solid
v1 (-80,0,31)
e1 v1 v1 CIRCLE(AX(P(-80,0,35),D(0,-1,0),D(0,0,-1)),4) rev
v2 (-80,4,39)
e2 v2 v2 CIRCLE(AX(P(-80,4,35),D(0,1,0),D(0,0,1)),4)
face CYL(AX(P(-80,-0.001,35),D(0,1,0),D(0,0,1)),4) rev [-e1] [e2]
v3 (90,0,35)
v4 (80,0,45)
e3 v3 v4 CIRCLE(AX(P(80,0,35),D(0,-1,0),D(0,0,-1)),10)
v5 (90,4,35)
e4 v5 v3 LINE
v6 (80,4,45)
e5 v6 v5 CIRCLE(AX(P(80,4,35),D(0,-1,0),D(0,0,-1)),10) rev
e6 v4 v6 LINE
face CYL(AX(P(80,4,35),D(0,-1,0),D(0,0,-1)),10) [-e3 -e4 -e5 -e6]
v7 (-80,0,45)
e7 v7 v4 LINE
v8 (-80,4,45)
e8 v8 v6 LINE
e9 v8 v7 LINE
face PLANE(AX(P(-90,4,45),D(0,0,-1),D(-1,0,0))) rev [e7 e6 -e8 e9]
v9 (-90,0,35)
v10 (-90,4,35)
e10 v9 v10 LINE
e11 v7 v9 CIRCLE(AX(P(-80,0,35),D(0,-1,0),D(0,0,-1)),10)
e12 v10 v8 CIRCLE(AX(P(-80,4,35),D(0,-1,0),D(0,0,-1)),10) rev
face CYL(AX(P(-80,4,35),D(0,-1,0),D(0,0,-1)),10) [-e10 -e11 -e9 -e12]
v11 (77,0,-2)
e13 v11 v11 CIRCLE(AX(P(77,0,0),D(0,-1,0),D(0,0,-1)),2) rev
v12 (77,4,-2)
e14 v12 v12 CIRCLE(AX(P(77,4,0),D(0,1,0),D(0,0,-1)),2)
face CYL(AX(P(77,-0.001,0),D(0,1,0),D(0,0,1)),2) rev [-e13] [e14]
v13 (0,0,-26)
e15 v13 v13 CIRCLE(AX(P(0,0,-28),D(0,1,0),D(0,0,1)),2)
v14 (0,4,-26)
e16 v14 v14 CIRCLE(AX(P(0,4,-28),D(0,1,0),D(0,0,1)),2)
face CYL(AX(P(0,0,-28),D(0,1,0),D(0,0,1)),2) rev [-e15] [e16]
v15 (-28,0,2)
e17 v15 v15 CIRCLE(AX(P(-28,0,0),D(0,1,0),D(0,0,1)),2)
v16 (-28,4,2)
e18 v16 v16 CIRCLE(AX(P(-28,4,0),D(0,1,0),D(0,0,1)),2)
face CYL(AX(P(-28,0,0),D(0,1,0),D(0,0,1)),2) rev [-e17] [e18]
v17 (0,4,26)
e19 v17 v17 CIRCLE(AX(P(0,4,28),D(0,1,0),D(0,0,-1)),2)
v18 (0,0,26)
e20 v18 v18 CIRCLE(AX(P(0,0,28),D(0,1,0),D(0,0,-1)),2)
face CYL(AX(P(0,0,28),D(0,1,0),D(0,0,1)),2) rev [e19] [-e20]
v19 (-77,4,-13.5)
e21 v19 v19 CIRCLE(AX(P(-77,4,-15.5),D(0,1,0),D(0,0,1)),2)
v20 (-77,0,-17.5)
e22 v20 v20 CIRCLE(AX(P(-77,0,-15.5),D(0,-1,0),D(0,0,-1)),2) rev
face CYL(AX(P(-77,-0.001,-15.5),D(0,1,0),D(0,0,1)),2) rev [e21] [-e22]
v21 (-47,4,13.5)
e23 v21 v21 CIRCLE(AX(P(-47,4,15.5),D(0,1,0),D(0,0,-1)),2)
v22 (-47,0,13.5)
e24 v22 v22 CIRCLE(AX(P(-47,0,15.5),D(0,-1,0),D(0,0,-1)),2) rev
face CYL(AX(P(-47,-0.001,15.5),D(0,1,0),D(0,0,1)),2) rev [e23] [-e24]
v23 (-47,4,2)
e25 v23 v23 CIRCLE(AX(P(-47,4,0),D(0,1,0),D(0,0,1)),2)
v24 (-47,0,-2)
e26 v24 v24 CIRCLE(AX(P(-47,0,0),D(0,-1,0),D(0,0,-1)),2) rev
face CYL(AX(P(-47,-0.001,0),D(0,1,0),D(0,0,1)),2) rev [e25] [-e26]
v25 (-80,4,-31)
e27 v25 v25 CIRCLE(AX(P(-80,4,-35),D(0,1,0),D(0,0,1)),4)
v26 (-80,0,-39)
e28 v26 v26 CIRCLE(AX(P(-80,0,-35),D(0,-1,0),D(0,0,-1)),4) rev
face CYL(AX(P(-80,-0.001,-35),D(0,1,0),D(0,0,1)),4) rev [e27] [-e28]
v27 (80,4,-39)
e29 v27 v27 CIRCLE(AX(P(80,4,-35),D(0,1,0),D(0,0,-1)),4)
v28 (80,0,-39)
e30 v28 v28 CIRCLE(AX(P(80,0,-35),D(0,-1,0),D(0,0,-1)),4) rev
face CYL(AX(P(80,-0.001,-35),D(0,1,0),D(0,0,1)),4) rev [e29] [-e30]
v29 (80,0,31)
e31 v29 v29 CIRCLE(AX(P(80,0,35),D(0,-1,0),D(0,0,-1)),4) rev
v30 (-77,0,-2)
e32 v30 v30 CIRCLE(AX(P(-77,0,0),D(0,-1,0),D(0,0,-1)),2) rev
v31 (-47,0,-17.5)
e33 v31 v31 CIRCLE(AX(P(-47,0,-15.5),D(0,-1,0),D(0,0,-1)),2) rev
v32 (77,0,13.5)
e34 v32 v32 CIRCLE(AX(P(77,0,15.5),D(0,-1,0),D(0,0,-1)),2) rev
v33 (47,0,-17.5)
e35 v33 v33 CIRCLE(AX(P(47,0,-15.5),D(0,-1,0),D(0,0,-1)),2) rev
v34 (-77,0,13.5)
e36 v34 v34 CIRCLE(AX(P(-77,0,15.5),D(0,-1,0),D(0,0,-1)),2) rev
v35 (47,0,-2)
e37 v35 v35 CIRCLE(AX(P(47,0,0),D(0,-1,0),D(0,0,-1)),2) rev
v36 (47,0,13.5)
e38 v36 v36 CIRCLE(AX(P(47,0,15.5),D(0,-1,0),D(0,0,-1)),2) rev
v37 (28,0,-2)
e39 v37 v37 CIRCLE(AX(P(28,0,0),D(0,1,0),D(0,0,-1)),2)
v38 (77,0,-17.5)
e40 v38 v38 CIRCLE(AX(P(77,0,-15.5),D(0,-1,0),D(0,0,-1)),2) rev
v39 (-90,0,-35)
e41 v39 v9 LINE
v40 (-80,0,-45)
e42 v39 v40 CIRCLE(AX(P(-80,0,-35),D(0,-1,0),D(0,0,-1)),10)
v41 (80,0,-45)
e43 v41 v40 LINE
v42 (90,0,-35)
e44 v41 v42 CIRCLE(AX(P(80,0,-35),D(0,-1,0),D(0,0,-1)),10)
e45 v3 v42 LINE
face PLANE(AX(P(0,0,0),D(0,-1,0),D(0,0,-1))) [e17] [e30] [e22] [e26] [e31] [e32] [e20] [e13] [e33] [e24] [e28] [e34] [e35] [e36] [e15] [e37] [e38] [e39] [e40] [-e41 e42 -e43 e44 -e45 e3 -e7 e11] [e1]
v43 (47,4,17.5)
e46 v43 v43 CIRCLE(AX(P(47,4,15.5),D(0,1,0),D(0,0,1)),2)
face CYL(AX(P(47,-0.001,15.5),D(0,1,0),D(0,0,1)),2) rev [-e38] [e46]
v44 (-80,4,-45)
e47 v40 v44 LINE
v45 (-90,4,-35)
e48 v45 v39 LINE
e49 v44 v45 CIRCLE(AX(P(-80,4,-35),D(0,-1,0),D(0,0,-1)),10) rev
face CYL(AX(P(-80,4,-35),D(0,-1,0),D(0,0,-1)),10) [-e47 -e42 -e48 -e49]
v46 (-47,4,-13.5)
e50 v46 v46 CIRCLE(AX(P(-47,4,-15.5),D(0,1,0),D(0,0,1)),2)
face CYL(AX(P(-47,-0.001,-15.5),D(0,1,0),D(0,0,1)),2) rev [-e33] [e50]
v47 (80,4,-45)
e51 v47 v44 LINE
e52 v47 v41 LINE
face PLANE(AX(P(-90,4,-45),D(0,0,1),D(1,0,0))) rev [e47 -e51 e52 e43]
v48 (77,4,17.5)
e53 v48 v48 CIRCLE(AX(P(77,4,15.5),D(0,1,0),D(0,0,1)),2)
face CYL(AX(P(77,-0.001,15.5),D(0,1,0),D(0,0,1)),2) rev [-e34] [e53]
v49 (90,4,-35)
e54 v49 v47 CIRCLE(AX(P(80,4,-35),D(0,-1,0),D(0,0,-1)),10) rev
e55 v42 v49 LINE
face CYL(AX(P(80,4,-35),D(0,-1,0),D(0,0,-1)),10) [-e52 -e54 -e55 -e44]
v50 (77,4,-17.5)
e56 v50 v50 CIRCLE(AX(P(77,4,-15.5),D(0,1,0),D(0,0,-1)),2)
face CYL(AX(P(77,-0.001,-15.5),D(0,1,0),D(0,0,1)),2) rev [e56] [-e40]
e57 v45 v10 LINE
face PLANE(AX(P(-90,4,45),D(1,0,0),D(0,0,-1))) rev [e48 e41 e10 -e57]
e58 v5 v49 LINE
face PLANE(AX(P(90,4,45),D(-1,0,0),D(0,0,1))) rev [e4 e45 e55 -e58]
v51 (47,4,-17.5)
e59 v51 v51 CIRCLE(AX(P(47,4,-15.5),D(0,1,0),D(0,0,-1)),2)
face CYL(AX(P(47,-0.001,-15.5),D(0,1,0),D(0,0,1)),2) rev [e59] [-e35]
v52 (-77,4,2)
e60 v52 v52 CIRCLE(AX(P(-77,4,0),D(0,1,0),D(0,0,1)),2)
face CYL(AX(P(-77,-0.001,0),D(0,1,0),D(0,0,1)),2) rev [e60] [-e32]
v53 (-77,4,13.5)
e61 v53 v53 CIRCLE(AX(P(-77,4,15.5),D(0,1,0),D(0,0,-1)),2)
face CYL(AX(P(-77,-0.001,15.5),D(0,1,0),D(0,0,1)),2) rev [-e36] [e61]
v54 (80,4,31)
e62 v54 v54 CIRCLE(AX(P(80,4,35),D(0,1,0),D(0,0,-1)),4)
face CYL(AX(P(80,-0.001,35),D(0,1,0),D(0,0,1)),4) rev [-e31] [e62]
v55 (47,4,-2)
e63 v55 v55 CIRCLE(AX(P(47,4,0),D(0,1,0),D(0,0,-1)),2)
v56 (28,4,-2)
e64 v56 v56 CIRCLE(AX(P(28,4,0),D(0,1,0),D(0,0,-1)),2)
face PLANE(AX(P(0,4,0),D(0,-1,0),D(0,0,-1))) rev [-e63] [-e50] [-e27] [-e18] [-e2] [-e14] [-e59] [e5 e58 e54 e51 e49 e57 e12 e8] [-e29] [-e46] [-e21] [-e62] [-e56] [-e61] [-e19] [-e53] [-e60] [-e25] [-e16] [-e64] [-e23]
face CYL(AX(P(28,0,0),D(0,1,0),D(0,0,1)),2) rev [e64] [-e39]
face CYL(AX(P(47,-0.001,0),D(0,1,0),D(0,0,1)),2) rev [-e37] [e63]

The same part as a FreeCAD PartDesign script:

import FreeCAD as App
import Part
import Sketcher
Q = App.Units.Quantity


def edges_at(feature, points):
    """Names of the edges that pass closest to the given points."""
    edges = feature.Shape.Edges
    near = lambda p: min(range(len(edges)), key=lambda i: edges[i].distToShape(Part.Vertex(*p))[0])
    return sorted({f"Edge{near(p) + 1}" for p in points})

doc = App.newDocument("Part")
body = doc.addObject("PartDesign::Body", "Body")

sketch1 = body.newObject("Sketcher::SketchObject", "Sketch")
sketch1.AttachmentSupport = (doc.getObject("XZ_Plane"), [""])
sketch1.MapMode = "FlatFace"
sketch1.addGeometry(Part.LineSegment(App.Vector(-90, -45, 0), App.Vector(-90, 45, 0)), False)
sketch1.addGeometry(Part.LineSegment(App.Vector(-90, 45, 0), App.Vector(90, 45, 0)), False)
sketch1.addGeometry(Part.LineSegment(App.Vector(90, 45, 0), App.Vector(90, -45, 0)), False)
sketch1.addGeometry(Part.LineSegment(App.Vector(90, -45, 0), App.Vector(-90, -45, 0)), False)
sketch1.addConstraint(Sketcher.Constraint("Coincident", 0, 2, 1, 1))
sketch1.addConstraint(Sketcher.Constraint("Coincident", 1, 2, 2, 1))
sketch1.addConstraint(Sketcher.Constraint("Coincident", 2, 2, 3, 1))
sketch1.addConstraint(Sketcher.Constraint("Coincident", 3, 2, 0, 1))
sketch1.addConstraint(Sketcher.Constraint("Vertical", 0))
sketch1.addConstraint(Sketcher.Constraint("Horizontal", 1))
sketch1.addConstraint(Sketcher.Constraint("Vertical", 2))
sketch1.addConstraint(Sketcher.Constraint("Horizontal", 3))
sketch1.addConstraint(Sketcher.Constraint("Symmetric", 0, 2, 2, 2, -1, 1))
sketch1.addConstraint(Sketcher.Constraint("DistanceX", 1, 1, 1, 2, Q("180 mm")))
sketch1.addConstraint(Sketcher.Constraint("DistanceY", 0, 1, 0, 2, Q("90 mm")))
pad1 = body.newObject("PartDesign::Pad", "Pad")
pad1.Profile = sketch1
pad1.Length = 4
pad1.Reversed = True
doc.recompute()

fillet = body.newObject("PartDesign::Fillet", "Fillet")
fillet.Base = (pad1, edges_at(pad1, [
    (90, 2, 45),
    (-90, 2, 45),
    (-90, 2, -45),
    (90, 2, -45),
]))
fillet.Radius = 10

sketch2 = body.newObject("Sketcher::SketchObject", "Sketch001")
sketch2.AttachmentSupport = (doc.getObject("XZ_Plane"), [""])
sketch2.MapMode = "FlatFace"
sketch2.AttachmentOffset = App.Placement(App.Vector(0, 0, -4), App.Rotation())
sketch2.addGeometry(Part.Circle(App.Vector(-47, 0, 0), App.Vector(0, 0, 1), 2), False)
sketch2.addConstraint(Sketcher.Constraint("PointOnObject", 0, 3, -1))
sketch2.addConstraint(Sketcher.Constraint("Diameter", 0, Q("4 mm")))
sketch2.addConstraint(Sketcher.Constraint("DistanceX", 0, 3, -1, 1, Q("47 mm")))
pocket1 = body.newObject("PartDesign::Pocket", "Pocket")
pocket1.Profile = sketch2
pocket1.Type = "UpToFirst"
pocket1.Reversed = True

sketch3 = body.newObject("Sketcher::SketchObject", "Sketch002")
sketch3.AttachmentSupport = (doc.getObject("XZ_Plane"), [""])
sketch3.MapMode = "FlatFace"
sketch3.AttachmentOffset = App.Placement(App.Vector(0, 0, -4), App.Rotation())
sketch3.addGeometry(Part.Circle(App.Vector(-77, 0, 0), App.Vector(0, 0, 1), 2), False)
sketch3.addConstraint(Sketcher.Constraint("PointOnObject", 0, 3, -1))
sketch3.addConstraint(Sketcher.Constraint("Diameter", 0, Q("4 mm")))
sketch3.addConstraint(Sketcher.Constraint("DistanceX", 0, 3, -1, 1, Q("77 mm")))
pocket2 = body.newObject("PartDesign::Pocket", "Pocket001")
pocket2.Profile = sketch3
pocket2.Type = "UpToFirst"
pocket2.Reversed = True

sketch4 = body.newObject("Sketcher::SketchObject", "Sketch003")
sketch4.AttachmentSupport = (doc.getObject("XZ_Plane"), [""])
sketch4.MapMode = "FlatFace"
sketch4.AttachmentOffset = App.Placement(App.Vector(0, 0, -4), App.Rotation())
sketch4.addGeometry(Part.Circle(App.Vector(77, 0, 0), App.Vector(0, 0, 1), 2), False)
sketch4.addConstraint(Sketcher.Constraint("PointOnObject", 0, 3, -1))
sketch4.addConstraint(Sketcher.Constraint("Diameter", 0, Q("4 mm")))
sketch4.addConstraint(Sketcher.Constraint("DistanceX", -1, 1, 0, 3, Q("77 mm")))
pocket3 = body.newObject("PartDesign::Pocket", "Pocket002")
pocket3.Profile = sketch4
pocket3.Type = "UpToFirst"
pocket3.Reversed = True

sketch5 = body.newObject("Sketcher::SketchObject", "Sketch004")
sketch5.AttachmentSupport = (doc.getObject("XZ_Plane"), [""])
sketch5.MapMode = "FlatFace"
sketch5.AttachmentOffset = App.Placement(App.Vector(0, 0, -4), App.Rotation())
sketch5.addGeometry(Part.Circle(App.Vector(47, 0, 0), App.Vector(0, 0, 1), 2), False)
sketch5.addConstraint(Sketcher.Constraint("PointOnObject", 0, 3, -1))
sketch5.addConstraint(Sketcher.Constraint("Diameter", 0, Q("4 mm")))
sketch5.addConstraint(Sketcher.Constraint("DistanceX", -1, 1, 0, 3, Q("47 mm")))
pocket4 = body.newObject("PartDesign::Pocket", "Pocket003")
pocket4.Profile = sketch5
pocket4.Type = "UpToFirst"
pocket4.Reversed = True

sketch6 = body.newObject("Sketcher::SketchObject", "Sketch005")
sketch6.AttachmentSupport = (doc.getObject("XZ_Plane"), [""])
sketch6.MapMode = "FlatFace"
sketch6.AttachmentOffset = App.Placement(App.Vector(0, 0, -4), App.Rotation())
sketch6.addGeometry(Part.Circle(App.Vector(-77, -15.5, 0), App.Vector(0, 0, 1), 2), False)
sketch6.addConstraint(Sketcher.Constraint("Diameter", 0, Q("4 mm")))
sketch6.addConstraint(Sketcher.Constraint("DistanceX", 0, 3, -1, 1, Q("77 mm")))
sketch6.addConstraint(Sketcher.Constraint("DistanceY", 0, 3, -1, 1, Q("15.5 mm")))
pocket5 = body.newObject("PartDesign::Pocket", "Pocket004")
pocket5.Profile = sketch6
pocket5.Type = "UpToFirst"
pocket5.Reversed = True

sketch7 = body.newObject("Sketcher::SketchObject", "Sketch006")
sketch7.AttachmentSupport = (doc.getObject("XZ_Plane"), [""])
sketch7.MapMode = "FlatFace"
sketch7.AttachmentOffset = App.Placement(App.Vector(0, 0, -4), App.Rotation())
sketch7.addGeometry(Part.Circle(App.Vector(-47, -15.5, 0), App.Vector(0, 0, 1), 2), False)
sketch7.addConstraint(Sketcher.Constraint("Diameter", 0, Q("4 mm")))
sketch7.addConstraint(Sketcher.Constraint("DistanceX", 0, 3, -1, 1, Q("47 mm")))
sketch7.addConstraint(Sketcher.Constraint("DistanceY", 0, 3, -1, 1, Q("15.5 mm")))
pocket6 = body.newObject("PartDesign::Pocket", "Pocket005")
pocket6.Profile = sketch7
pocket6.Type = "UpToFirst"
pocket6.Reversed = True

sketch8 = body.newObject("Sketcher::SketchObject", "Sketch007")
sketch8.AttachmentSupport = (doc.getObject("XZ_Plane"), [""])
sketch8.MapMode = "FlatFace"
sketch8.AttachmentOffset = App.Placement(App.Vector(0, 0, -4), App.Rotation())
sketch8.addGeometry(Part.Circle(App.Vector(-77, 15.5, 0), App.Vector(0, 0, 1), 2), False)
sketch8.addConstraint(Sketcher.Constraint("Diameter", 0, Q("4 mm")))
sketch8.addConstraint(Sketcher.Constraint("DistanceX", 0, 3, -1, 1, Q("77 mm")))
sketch8.addConstraint(Sketcher.Constraint("DistanceY", -1, 1, 0, 3, Q("15.5 mm")))
pocket7 = body.newObject("PartDesign::Pocket", "Pocket006")
pocket7.Profile = sketch8
pocket7.Type = "UpToFirst"
pocket7.Reversed = True

sketch9 = body.newObject("Sketcher::SketchObject", "Sketch008")
sketch9.AttachmentSupport = (doc.getObject("XZ_Plane"), [""])
sketch9.MapMode = "FlatFace"
sketch9.AttachmentOffset = App.Placement(App.Vector(0, 0, -4), App.Rotation())
sketch9.addGeometry(Part.Circle(App.Vector(-47, 15.5, 0), App.Vector(0, 0, 1), 2), False)
sketch9.addConstraint(Sketcher.Constraint("Diameter", 0, Q("4 mm")))
sketch9.addConstraint(Sketcher.Constraint("DistanceX", 0, 3, -1, 1, Q("47 mm")))
sketch9.addConstraint(Sketcher.Constraint("DistanceY", -1, 1, 0, 3, Q("15.5 mm")))
pocket8 = body.newObject("PartDesign::Pocket", "Pocket007")
pocket8.Profile = sketch9
pocket8.Type = "UpToFirst"
pocket8.Reversed = True

sketch10 = body.newObject("Sketcher::SketchObject", "Sketch009")
sketch10.AttachmentSupport = (doc.getObject("XZ_Plane"), [""])
sketch10.MapMode = "FlatFace"
sketch10.AttachmentOffset = App.Placement(App.Vector(0, 0, -4), App.Rotation())
sketch10.addGeometry(Part.Circle(App.Vector(47, 15.5, 0), App.Vector(0, 0, 1), 2), False)
sketch10.addConstraint(Sketcher.Constraint("Diameter", 0, Q("4 mm")))
sketch10.addConstraint(Sketcher.Constraint("DistanceX", -1, 1, 0, 3, Q("47 mm")))
sketch10.addConstraint(Sketcher.Constraint("DistanceY", -1, 1, 0, 3, Q("15.5 mm")))
pocket9 = body.newObject("PartDesign::Pocket", "Pocket008")
pocket9.Profile = sketch10
pocket9.Type = "UpToFirst"
pocket9.Reversed = True

sketch11 = body.newObject("Sketcher::SketchObject", "Sketch010")
sketch11.AttachmentSupport = (doc.getObject("XZ_Plane"), [""])
sketch11.MapMode = "FlatFace"
sketch11.AttachmentOffset = App.Placement(App.Vector(0, 0, -4), App.Rotation())
sketch11.addGeometry(Part.Circle(App.Vector(77, 15.5, 0), App.Vector(0, 0, 1), 2), False)
sketch11.addConstraint(Sketcher.Constraint("Diameter", 0, Q("4 mm")))
sketch11.addConstraint(Sketcher.Constraint("DistanceX", -1, 1, 0, 3, Q("77 mm")))
sketch11.addConstraint(Sketcher.Constraint("DistanceY", -1, 1, 0, 3, Q("15.5 mm")))
pocket10 = body.newObject("PartDesign::Pocket", "Pocket009")
pocket10.Profile = sketch11
pocket10.Type = "UpToFirst"
pocket10.Reversed = True

sketch12 = body.newObject("Sketcher::SketchObject", "Sketch011")
sketch12.AttachmentSupport = (doc.getObject("XZ_Plane"), [""])
sketch12.MapMode = "FlatFace"
sketch12.AttachmentOffset = App.Placement(App.Vector(0, 0, -4), App.Rotation())
sketch12.addGeometry(Part.Circle(App.Vector(77, -15.5, 0), App.Vector(0, 0, 1), 2), False)
sketch12.addConstraint(Sketcher.Constraint("Diameter", 0, Q("4 mm")))
sketch12.addConstraint(Sketcher.Constraint("DistanceX", -1, 1, 0, 3, Q("77 mm")))
sketch12.addConstraint(Sketcher.Constraint("DistanceY", 0, 3, -1, 1, Q("15.5 mm")))
pocket11 = body.newObject("PartDesign::Pocket", "Pocket010")
pocket11.Profile = sketch12
pocket11.Type = "UpToFirst"
pocket11.Reversed = True

sketch13 = body.newObject("Sketcher::SketchObject", "Sketch012")
sketch13.AttachmentSupport = (doc.getObject("XZ_Plane"), [""])
sketch13.MapMode = "FlatFace"
sketch13.AttachmentOffset = App.Placement(App.Vector(0, 0, -4), App.Rotation())
sketch13.addGeometry(Part.Circle(App.Vector(47, -15.5, 0), App.Vector(0, 0, 1), 2), False)
sketch13.addConstraint(Sketcher.Constraint("Diameter", 0, Q("4 mm")))
sketch13.addConstraint(Sketcher.Constraint("DistanceX", -1, 1, 0, 3, Q("47 mm")))
sketch13.addConstraint(Sketcher.Constraint("DistanceY", 0, 3, -1, 1, Q("15.5 mm")))
pocket12 = body.newObject("PartDesign::Pocket", "Pocket011")
pocket12.Profile = sketch13
pocket12.Type = "UpToFirst"
pocket12.Reversed = True

sketch14 = body.newObject("Sketcher::SketchObject", "Sketch013")
sketch14.AttachmentSupport = (doc.getObject("XZ_Plane"), [""])
sketch14.MapMode = "FlatFace"
sketch14.AttachmentOffset = App.Placement(App.Vector(0, 0, -4), App.Rotation())
sketch14.addGeometry(Part.Circle(App.Vector(-80, -35, 0), App.Vector(0, 0, 1), 4), False)
sketch14.addConstraint(Sketcher.Constraint("Diameter", 0, Q("8 mm")))
sketch14.addConstraint(Sketcher.Constraint("DistanceX", 0, 3, -1, 1, Q("80 mm")))
sketch14.addConstraint(Sketcher.Constraint("DistanceY", 0, 3, -1, 1, Q("35 mm")))
pocket13 = body.newObject("PartDesign::Pocket", "Pocket012")
pocket13.Profile = sketch14
pocket13.Type = "UpToFirst"
pocket13.Reversed = True

sketch15 = body.newObject("Sketcher::SketchObject", "Sketch014")
sketch15.AttachmentSupport = (doc.getObject("XZ_Plane"), [""])
sketch15.MapMode = "FlatFace"
sketch15.AttachmentOffset = App.Placement(App.Vector(0, 0, -4), App.Rotation())
sketch15.addGeometry(Part.Circle(App.Vector(-80, 35, 0), App.Vector(0, 0, 1), 4), False)
sketch15.addConstraint(Sketcher.Constraint("Diameter", 0, Q("8 mm")))
sketch15.addConstraint(Sketcher.Constraint("DistanceX", 0, 3, -1, 1, Q("80 mm")))
sketch15.addConstraint(Sketcher.Constraint("DistanceY", -1, 1, 0, 3, Q("35 mm")))
pocket14 = body.newObject("PartDesign::Pocket", "Pocket013")
pocket14.Profile = sketch15
pocket14.Type = "UpToFirst"
pocket14.Reversed = True

sketch16 = body.newObject("Sketcher::SketchObject", "Sketch015")
sketch16.AttachmentSupport = (doc.getObject("XZ_Plane"), [""])
sketch16.MapMode = "FlatFace"
sketch16.AttachmentOffset = App.Placement(App.Vector(0, 0, -4), App.Rotation())
sketch16.addGeometry(Part.Circle(App.Vector(80, 35, 0), App.Vector(0, 0, 1), 4), False)
sketch16.addConstraint(Sketcher.Constraint("Diameter", 0, Q("8 mm")))
sketch16.addConstraint(Sketcher.Constraint("DistanceX", -1, 1, 0, 3, Q("80 mm")))
sketch16.addConstraint(Sketcher.Constraint("DistanceY", -1, 1, 0, 3, Q("35 mm")))
pocket15 = body.newObject("PartDesign::Pocket", "Pocket014")
pocket15.Profile = sketch16
pocket15.Type = "UpToFirst"
pocket15.Reversed = True

sketch17 = body.newObject("Sketcher::SketchObject", "Sketch016")
sketch17.AttachmentSupport = (doc.getObject("XZ_Plane"), [""])
sketch17.MapMode = "FlatFace"
sketch17.AttachmentOffset = App.Placement(App.Vector(0, 0, -4), App.Rotation())
sketch17.addGeometry(Part.Circle(App.Vector(80, -35, 0), App.Vector(0, 0, 1), 4), False)
sketch17.addConstraint(Sketcher.Constraint("Diameter", 0, Q("8 mm")))
sketch17.addConstraint(Sketcher.Constraint("DistanceX", -1, 1, 0, 3, Q("80 mm")))
sketch17.addConstraint(Sketcher.Constraint("DistanceY", 0, 3, -1, 1, Q("35 mm")))
pocket16 = body.newObject("PartDesign::Pocket", "Pocket015")
pocket16.Profile = sketch17
pocket16.Type = "UpToFirst"
pocket16.Reversed = True

sketch18 = body.newObject("Sketcher::SketchObject", "Sketch017")
sketch18.AttachmentSupport = (doc.getObject("XZ_Plane"), [""])
sketch18.MapMode = "FlatFace"
sketch18.AttachmentOffset = App.Placement(App.Vector(0, 0, -4), App.Rotation())
sketch18.addGeometry(Part.Circle(App.Vector(0, -28, 0), App.Vector(0, 0, 1), 2), False)
sketch18.addGeometry(Part.Circle(App.Vector(-28, 0, 0), App.Vector(0, 0, 1), 2), False)
sketch18.addGeometry(Part.Circle(App.Vector(0, 28, 0), App.Vector(0, 0, 1), 2), False)
sketch18.addGeometry(Part.Circle(App.Vector(28, 0, 0), App.Vector(0, 0, 1), 2), False)
sketch18.addConstraint(Sketcher.Constraint("Equal", 0, 1))
sketch18.addConstraint(Sketcher.Constraint("Equal", 1, 2))
sketch18.addConstraint(Sketcher.Constraint("Equal", 2, 3))
sketch18.addConstraint(Sketcher.Constraint("Symmetric", 0, 3, 2, 3, -1, 1))
sketch18.addConstraint(Sketcher.Constraint("Symmetric", 1, 3, 3, 3, -1, 1))
sketch18.addConstraint(Sketcher.Constraint("PointOnObject", 0, 3, -2))
sketch18.addConstraint(Sketcher.Constraint("PointOnObject", 1, 3, -1))
sketch18.addConstraint(Sketcher.Constraint("Diameter", 0, Q("4 mm")))
sketch18.addConstraint(Sketcher.Constraint("DistanceY", 0, 3, -1, 1, Q("28 mm")))
sketch18.addConstraint(Sketcher.Constraint("DistanceX", 1, 3, -1, 1, Q("28 mm")))
pocket17 = body.newObject("PartDesign::Pocket", "Pocket016")
pocket17.Profile = sketch18
pocket17.Type = "ThroughAll"
pocket17.Reversed = True

doc.recompute()
